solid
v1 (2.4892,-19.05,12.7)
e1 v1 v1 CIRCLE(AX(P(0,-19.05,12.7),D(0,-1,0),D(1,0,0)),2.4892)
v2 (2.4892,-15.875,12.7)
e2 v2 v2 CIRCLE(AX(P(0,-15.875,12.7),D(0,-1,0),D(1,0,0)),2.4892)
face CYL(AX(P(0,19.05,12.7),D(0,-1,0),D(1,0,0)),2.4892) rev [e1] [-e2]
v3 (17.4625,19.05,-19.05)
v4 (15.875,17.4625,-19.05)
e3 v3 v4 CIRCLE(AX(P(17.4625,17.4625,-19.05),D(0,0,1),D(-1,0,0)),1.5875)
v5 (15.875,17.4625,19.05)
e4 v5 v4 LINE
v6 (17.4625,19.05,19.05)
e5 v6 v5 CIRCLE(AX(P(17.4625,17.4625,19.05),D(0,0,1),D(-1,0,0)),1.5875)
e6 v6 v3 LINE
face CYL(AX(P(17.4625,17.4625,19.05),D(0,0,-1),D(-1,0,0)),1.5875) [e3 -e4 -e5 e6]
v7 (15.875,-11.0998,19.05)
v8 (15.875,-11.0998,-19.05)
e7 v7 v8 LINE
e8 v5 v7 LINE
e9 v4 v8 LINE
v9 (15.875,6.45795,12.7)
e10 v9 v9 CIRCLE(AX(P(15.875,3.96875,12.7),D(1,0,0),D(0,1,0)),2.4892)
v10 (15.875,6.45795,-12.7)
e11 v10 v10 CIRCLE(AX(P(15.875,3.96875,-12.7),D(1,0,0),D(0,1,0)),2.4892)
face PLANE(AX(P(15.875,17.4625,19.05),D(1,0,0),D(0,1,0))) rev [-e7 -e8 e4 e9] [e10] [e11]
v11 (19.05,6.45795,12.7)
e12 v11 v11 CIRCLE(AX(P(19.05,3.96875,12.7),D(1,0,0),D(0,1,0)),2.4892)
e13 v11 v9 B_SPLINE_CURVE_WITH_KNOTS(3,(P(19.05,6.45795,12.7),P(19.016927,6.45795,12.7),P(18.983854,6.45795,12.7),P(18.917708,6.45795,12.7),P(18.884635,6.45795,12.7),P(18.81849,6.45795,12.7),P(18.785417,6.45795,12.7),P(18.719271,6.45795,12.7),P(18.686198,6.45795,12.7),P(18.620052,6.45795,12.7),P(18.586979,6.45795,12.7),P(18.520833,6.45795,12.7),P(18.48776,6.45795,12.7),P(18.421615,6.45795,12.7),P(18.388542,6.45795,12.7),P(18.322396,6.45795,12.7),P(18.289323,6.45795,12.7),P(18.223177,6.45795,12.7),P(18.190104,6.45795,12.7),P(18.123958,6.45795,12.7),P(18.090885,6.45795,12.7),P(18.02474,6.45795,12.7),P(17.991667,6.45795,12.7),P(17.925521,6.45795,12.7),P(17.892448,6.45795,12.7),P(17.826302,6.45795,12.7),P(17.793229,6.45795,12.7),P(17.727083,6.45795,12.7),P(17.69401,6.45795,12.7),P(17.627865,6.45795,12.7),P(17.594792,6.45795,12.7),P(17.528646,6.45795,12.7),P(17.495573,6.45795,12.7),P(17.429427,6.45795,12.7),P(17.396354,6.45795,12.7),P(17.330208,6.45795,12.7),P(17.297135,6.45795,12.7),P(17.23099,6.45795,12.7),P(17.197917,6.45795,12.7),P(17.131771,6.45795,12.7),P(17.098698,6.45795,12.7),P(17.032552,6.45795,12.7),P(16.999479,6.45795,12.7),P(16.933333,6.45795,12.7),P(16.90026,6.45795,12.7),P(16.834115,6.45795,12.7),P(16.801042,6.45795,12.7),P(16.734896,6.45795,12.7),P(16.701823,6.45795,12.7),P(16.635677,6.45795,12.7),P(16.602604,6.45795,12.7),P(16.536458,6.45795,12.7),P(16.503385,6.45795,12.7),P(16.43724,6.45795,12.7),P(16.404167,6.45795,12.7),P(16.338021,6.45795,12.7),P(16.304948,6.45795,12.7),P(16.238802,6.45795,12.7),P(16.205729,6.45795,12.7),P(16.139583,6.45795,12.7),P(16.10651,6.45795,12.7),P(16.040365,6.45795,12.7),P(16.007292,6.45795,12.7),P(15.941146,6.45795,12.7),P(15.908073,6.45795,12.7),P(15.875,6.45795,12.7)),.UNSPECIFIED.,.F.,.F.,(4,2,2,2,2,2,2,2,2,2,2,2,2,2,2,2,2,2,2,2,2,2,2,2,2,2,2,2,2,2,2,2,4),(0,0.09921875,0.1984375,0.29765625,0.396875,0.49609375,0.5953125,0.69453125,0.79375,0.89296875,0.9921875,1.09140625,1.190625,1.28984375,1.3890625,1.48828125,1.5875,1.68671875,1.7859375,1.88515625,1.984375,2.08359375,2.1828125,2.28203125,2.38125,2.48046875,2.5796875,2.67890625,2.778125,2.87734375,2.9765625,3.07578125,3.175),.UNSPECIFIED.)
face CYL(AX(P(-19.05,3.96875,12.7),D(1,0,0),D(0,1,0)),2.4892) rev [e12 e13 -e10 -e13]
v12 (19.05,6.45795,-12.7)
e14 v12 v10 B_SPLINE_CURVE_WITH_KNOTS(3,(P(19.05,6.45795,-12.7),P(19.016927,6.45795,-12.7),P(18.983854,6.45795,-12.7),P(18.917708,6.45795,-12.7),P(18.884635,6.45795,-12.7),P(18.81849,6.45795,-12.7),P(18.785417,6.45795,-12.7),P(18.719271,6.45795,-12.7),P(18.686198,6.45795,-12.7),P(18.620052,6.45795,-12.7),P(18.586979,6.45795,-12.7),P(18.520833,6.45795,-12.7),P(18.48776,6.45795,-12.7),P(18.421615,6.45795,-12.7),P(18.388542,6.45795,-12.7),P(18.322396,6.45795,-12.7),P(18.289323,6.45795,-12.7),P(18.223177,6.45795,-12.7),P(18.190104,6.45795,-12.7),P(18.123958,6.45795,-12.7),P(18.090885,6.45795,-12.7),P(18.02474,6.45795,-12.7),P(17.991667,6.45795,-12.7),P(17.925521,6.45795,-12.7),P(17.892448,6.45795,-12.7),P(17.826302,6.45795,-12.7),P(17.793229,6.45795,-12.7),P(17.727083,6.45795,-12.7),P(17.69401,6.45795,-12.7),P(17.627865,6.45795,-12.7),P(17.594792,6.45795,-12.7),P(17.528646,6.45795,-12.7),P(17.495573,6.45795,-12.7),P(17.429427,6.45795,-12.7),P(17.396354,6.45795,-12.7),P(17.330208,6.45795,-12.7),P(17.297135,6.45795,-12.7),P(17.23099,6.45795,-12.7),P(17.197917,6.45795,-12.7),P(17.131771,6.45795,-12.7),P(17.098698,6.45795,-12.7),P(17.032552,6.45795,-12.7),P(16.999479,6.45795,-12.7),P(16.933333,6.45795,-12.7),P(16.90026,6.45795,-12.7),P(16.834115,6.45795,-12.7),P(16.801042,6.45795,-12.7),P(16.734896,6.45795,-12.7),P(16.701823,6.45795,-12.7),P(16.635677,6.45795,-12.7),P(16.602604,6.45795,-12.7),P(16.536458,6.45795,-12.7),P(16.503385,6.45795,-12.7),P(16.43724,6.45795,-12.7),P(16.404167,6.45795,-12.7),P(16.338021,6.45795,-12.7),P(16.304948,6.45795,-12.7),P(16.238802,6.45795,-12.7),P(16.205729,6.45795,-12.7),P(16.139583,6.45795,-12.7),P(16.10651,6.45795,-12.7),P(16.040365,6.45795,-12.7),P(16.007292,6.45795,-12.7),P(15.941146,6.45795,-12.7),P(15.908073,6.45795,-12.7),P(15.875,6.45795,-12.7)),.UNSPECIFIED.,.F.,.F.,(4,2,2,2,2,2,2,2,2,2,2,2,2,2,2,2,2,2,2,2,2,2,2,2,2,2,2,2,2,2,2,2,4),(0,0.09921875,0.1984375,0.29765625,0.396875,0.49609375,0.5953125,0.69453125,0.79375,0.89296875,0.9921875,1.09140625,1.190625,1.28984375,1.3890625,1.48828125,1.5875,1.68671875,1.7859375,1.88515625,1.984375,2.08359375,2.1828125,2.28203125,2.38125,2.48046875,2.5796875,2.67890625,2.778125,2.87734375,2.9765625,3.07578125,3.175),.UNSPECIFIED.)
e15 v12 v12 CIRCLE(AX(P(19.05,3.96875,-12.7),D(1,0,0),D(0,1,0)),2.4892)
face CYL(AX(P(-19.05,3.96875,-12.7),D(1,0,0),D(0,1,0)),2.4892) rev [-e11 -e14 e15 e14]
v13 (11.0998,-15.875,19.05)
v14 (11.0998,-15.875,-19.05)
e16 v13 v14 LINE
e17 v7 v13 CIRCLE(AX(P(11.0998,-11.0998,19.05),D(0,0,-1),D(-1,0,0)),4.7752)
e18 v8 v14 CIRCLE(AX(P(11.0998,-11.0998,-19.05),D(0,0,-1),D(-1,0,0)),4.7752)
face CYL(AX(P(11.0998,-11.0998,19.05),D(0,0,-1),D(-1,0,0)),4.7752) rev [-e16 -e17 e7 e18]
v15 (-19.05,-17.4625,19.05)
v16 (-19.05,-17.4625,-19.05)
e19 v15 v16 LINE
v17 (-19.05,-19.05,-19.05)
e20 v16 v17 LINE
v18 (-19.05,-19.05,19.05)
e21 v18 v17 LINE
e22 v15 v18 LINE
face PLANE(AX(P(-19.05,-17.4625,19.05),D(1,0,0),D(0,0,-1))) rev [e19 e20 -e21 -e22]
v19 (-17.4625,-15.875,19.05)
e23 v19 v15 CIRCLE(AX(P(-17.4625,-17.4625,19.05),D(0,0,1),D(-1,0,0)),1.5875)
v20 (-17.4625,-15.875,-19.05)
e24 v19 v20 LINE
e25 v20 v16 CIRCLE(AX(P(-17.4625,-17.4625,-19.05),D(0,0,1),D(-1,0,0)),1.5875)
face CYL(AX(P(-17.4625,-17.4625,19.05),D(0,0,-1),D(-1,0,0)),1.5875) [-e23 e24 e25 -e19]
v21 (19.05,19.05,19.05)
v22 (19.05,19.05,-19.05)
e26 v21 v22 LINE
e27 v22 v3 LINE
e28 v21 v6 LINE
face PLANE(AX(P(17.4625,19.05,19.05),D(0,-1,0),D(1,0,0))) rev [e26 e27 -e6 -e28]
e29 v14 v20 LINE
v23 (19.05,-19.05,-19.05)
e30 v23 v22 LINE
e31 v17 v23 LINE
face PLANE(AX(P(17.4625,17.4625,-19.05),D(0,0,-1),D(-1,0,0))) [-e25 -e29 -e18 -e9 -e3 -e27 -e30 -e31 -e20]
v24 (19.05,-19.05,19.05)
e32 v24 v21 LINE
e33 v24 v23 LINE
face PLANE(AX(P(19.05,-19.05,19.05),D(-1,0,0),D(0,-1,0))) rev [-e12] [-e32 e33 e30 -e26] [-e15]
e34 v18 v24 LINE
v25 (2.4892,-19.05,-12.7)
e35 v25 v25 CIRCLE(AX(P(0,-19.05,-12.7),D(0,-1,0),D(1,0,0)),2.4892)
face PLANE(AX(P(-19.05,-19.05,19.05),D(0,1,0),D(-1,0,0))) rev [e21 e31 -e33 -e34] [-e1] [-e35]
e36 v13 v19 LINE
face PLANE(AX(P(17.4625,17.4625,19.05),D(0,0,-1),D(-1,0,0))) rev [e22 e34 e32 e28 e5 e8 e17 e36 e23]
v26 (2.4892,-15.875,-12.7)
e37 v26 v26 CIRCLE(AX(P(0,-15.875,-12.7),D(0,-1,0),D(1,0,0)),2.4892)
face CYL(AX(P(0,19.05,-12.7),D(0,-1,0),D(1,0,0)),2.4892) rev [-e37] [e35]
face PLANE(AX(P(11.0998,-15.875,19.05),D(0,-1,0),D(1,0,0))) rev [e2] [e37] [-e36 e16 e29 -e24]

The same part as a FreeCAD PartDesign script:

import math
import FreeCAD as App
import Part
import Sketcher
from FreeCAD import Vector
Q = App.Units.Quantity

doc = App.newDocument("Part")
body = doc.addObject("PartDesign::Body", "Body")

# Sketch on XY plane
sketch1 = body.newObject("Sketcher::SketchObject", "Sketch")
sketch1.AttachmentSupport = (doc.getObject("XY_Plane"), [""])
sketch1.MapMode = "FlatFace"
sketch1.addGeometry([
    Part.LineSegment(Vector(-19.05, -19.05, 0), Vector(19.05, -19.05, 0)),  # 0
    Part.LineSegment(Vector(19.05, -19.05, 0), Vector(19.05, 19.05, 0)),  # 1
    Part.LineSegment(Vector(19.05, 19.05, 0), Vector(17.4625, 19.05, 0)),  # 2
    Part.ArcOfCircle(Part.Circle(Vector(17.4625, 17.4625, 0), Vector(0, 0, 1), 1.5875), math.radians(90), math.radians(180)),  # 3
    Part.LineSegment(Vector(15.875, 17.4625, 0), Vector(15.875, -11.0998, 0)),  # 4
    Part.ArcOfCircle(Part.Circle(Vector(11.0998, -11.0998, 0), Vector(0, 0, 1), 4.7752), math.radians(-90), math.radians(0)),  # 5
    Part.LineSegment(Vector(11.0998, -15.875, 0), Vector(-17.4625, -15.875, 0)),  # 6
    Part.ArcOfCircle(Part.Circle(Vector(-17.4625, -17.4625, 0), Vector(0, 0, 1), 1.5875), math.radians(90), math.radians(180)),  # 7
    Part.LineSegment(Vector(-19.05, -17.4625, 0), Vector(-19.05, -19.05, 0)),  # 8
], False)
sketch1.addConstraint([
    Sketcher.Constraint("Coincident", 0, 2, 1, 1),
    Sketcher.Constraint("Coincident", 1, 2, 2, 1),
    Sketcher.Constraint("Tangent", 2, 2, 3, 1),
    Sketcher.Constraint("Tangent", 3, 2, 4, 1),
    Sketcher.Constraint("Tangent", 4, 2, 5, 2),
    Sketcher.Constraint("Tangent", 5, 1, 6, 1),
    Sketcher.Constraint("Tangent", 6, 2, 7, 1),
    Sketcher.Constraint("Tangent", 7, 2, 8, 1),
    Sketcher.Constraint("Coincident", 8, 2, 0, 1),
    Sketcher.Constraint("Horizontal", 0),
    Sketcher.Constraint("Vertical", 1),
    Sketcher.Constraint("Horizontal", 2),
    Sketcher.Constraint("Vertical", 4),
    Sketcher.Constraint("Horizontal", 6),
    Sketcher.Constraint("Vertical", 8),
    Sketcher.Constraint("Equal", 3, 7),
    Sketcher.Constraint("Symmetric", 3, 3, 7, 3, -1, 1),
    Sketcher.Constraint("Symmetric", 1, 2, 8, 2, -1, 1),
    Sketcher.Constraint("Equal", 0, 1),
    Sketcher.Constraint("DistanceX", 0, 1, 0, 2, Q("1.5 in")),
    Sketcher.Constraint("Radius", 3, Q("0.0625 in")),
    Sketcher.Constraint("Radius", 5, Q("0.188 in")),
])
pad1 = body.newObject("PartDesign::Pad", "Pad")
pad1.Profile = sketch1
pad1.Length = Q("1.5 in")
pad1.Midplane = True

# Sketch on YZ plane
sketch2 = body.newObject("Sketcher::SketchObject", "Sketch001")
sketch2.AttachmentSupport = (doc.getObject("YZ_Plane"), [""])
sketch2.MapMode = "FlatFace"
sketch2.AttachmentOffset = App.Placement(Vector(0, 0, 0.75 * 25.4), App.Rotation())
sketch2.addGeometry([
    Part.Circle(Vector(3.96875, 12.7, 0), Vector(0, 0, 1), 2.4892),
    Part.Circle(Vector(3.96875, -12.7, 0), Vector(0, 0, 1), 2.4892),
], False)
sketch2.addConstraint([
    Sketcher.Constraint("Equal", 0, 1),
    Sketcher.Constraint("Symmetric", 0, 3, 1, 3, -1),
    Sketcher.Constraint("Diameter", 0, Q("0.196 in")),
    Sketcher.Constraint("DistanceY", 1, 3, 0, 3, Q("1 in")),
    Sketcher.Constraint("DistanceX", -1, 1, 0, 3, Q("0.15625 in")),
])
pocket1 = body.newObject("PartDesign::Pocket", "Pocket")
pocket1.Profile = sketch2
pocket1.Type = "ThroughAll"

# Sketch on XZ plane
sketch3 = body.newObject("Sketcher::SketchObject", "Sketch002")
sketch3.AttachmentSupport = (doc.getObject("XZ_Plane"), [""])
sketch3.MapMode = "FlatFace"
sketch3.AttachmentOffset = App.Placement(Vector(0, 0, 0.75 * 25.4), App.Rotation())
sketch3.addGeometry([
    Part.Circle(Vector(0, 12.7, 0), Vector(0, 0, 1), 2.4892),
    Part.Circle(Vector(0, -12.7, 0), Vector(0, 0, 1), 2.4892),
], False)
sketch3.addConstraint([
    Sketcher.Constraint("Equal", 0, 1),
    Sketcher.Constraint("Symmetric", 0, 3, 1, 3, -1, 1),
    Sketcher.Constraint("PointOnObject", 0, 3, -2),
    Sketcher.Constraint("Diameter", 0, Q("0.196 in")),
    Sketcher.Constraint("DistanceY", 1, 3, 0, 3, Q("1 in")),
])
pocket2 = body.newObject("PartDesign::Pocket", "Pocket001")
pocket2.Profile = sketch3
pocket2.Type = "ThroughAll"

doc.recompute()
